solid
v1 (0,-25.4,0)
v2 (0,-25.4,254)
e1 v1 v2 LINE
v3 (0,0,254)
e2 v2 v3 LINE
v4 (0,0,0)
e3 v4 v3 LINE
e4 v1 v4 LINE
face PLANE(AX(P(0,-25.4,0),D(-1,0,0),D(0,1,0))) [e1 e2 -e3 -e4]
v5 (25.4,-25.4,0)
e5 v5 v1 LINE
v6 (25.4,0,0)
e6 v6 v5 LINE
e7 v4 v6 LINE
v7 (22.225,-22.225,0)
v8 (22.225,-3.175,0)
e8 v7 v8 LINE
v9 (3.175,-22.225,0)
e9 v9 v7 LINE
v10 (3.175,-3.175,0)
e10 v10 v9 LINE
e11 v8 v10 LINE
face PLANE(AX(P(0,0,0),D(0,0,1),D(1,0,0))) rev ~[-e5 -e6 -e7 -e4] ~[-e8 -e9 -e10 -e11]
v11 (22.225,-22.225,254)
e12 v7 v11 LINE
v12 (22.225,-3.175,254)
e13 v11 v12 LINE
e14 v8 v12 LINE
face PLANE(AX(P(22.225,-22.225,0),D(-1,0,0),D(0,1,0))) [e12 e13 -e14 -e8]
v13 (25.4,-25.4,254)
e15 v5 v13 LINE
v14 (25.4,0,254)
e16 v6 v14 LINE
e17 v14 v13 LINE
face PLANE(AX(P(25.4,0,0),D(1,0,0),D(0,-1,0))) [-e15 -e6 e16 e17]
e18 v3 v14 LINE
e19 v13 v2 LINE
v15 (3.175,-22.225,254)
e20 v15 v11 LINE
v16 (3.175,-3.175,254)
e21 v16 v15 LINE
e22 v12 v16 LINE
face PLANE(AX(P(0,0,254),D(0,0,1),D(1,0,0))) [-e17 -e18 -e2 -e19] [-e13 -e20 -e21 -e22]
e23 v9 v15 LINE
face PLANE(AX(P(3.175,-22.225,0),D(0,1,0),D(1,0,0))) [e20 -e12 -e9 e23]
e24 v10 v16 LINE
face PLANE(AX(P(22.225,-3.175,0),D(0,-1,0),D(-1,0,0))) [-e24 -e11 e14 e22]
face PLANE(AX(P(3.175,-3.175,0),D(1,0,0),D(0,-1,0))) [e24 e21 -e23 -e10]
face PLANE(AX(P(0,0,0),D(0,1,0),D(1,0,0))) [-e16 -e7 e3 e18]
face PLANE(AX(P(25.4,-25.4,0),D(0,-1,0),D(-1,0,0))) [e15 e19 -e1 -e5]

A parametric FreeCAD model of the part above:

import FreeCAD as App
import Part
import Sketcher

V = App.Vector
Q = App.Units.Quantity


def add_polygon(sketch, points):
    """Adds a closed chain of lines whose ends are joined by coincident constraints."""
    first, n = sketch.GeometryCount, len(points)
    for a, b in zip(points, points[1:] + points[:1]):
        sketch.addGeometry(Part.LineSegment(App.Vector(*a, 0), App.Vector(*b, 0)), False)
    for i in range(n):
        sketch.addConstraint(Sketcher.Constraint("Coincident", first + i, 2, first + (i + 1) % n, 1))

doc = App.newDocument("Part")
params = doc.addObject("Spreadsheet::Sheet", "Params")
for row, (alias, value) in enumerate([
    ("sketch1_width", "1 in"),
    ("pad1_length", "10 in"),
], start=1):
    params.set(f"A{row}", alias)
    params.set(f"B{row}", "=" + value)
    params.setAlias(f"B{row}", alias)

body = doc.addObject("PartDesign::Body", "Body")

# Sketch on XY plane
sketch1 = body.newObject("Sketcher::SketchObject", "Sketch")
sketch1.AttachmentSupport = (doc.getObject("XY_Plane"), [""])
sketch1.MapMode = "FlatFace"
add_polygon(sketch1, [(25, 0), (0, 0), (0, -25), (25, -25)])  # lines 0-3
add_polygon(sketch1, [(22, -3), (22, -22), (3, -22), (3, -3)])  # lines 4-7
sketch1.addConstraint([
    Sketcher.Constraint("Horizontal", 0),
    Sketcher.Constraint("Vertical", 1),
    Sketcher.Constraint("Horizontal", 2),
    Sketcher.Constraint("Vertical", 3),
    Sketcher.Constraint("Vertical", 4),
    Sketcher.Constraint("Horizontal", 5),
    Sketcher.Constraint("Vertical", 6),
    Sketcher.Constraint("Horizontal", 7),
    Sketcher.Constraint("Coincident", 0, 2, -1, 1),
    Sketcher.Constraint("Equal", 2, 1),
    Sketcher.Constraint("Equal", 7, 4),
    Sketcher.Constraint("DistanceX", 0, 2, 0, 1, Q("1 in")),
    Sketcher.Constraint("DistanceX", -1, 1, 5, 2, Q("0.125 in")),
    Sketcher.Constraint("DistanceY", 6, 2, -1, 1, Q("0.125 in")),
    Sketcher.Constraint("DistanceX", 4, 2, 2, 2, Q("0.125 in")),
])
sketch1.setExpression("Constraints[19]", "Params.sketch1_width")
pad1 = body.newObject("PartDesign::Pad", "Pad")
pad1.Profile = sketch1
pad1.setExpression("Length", "Params.pad1_length")

doc.recompute()
